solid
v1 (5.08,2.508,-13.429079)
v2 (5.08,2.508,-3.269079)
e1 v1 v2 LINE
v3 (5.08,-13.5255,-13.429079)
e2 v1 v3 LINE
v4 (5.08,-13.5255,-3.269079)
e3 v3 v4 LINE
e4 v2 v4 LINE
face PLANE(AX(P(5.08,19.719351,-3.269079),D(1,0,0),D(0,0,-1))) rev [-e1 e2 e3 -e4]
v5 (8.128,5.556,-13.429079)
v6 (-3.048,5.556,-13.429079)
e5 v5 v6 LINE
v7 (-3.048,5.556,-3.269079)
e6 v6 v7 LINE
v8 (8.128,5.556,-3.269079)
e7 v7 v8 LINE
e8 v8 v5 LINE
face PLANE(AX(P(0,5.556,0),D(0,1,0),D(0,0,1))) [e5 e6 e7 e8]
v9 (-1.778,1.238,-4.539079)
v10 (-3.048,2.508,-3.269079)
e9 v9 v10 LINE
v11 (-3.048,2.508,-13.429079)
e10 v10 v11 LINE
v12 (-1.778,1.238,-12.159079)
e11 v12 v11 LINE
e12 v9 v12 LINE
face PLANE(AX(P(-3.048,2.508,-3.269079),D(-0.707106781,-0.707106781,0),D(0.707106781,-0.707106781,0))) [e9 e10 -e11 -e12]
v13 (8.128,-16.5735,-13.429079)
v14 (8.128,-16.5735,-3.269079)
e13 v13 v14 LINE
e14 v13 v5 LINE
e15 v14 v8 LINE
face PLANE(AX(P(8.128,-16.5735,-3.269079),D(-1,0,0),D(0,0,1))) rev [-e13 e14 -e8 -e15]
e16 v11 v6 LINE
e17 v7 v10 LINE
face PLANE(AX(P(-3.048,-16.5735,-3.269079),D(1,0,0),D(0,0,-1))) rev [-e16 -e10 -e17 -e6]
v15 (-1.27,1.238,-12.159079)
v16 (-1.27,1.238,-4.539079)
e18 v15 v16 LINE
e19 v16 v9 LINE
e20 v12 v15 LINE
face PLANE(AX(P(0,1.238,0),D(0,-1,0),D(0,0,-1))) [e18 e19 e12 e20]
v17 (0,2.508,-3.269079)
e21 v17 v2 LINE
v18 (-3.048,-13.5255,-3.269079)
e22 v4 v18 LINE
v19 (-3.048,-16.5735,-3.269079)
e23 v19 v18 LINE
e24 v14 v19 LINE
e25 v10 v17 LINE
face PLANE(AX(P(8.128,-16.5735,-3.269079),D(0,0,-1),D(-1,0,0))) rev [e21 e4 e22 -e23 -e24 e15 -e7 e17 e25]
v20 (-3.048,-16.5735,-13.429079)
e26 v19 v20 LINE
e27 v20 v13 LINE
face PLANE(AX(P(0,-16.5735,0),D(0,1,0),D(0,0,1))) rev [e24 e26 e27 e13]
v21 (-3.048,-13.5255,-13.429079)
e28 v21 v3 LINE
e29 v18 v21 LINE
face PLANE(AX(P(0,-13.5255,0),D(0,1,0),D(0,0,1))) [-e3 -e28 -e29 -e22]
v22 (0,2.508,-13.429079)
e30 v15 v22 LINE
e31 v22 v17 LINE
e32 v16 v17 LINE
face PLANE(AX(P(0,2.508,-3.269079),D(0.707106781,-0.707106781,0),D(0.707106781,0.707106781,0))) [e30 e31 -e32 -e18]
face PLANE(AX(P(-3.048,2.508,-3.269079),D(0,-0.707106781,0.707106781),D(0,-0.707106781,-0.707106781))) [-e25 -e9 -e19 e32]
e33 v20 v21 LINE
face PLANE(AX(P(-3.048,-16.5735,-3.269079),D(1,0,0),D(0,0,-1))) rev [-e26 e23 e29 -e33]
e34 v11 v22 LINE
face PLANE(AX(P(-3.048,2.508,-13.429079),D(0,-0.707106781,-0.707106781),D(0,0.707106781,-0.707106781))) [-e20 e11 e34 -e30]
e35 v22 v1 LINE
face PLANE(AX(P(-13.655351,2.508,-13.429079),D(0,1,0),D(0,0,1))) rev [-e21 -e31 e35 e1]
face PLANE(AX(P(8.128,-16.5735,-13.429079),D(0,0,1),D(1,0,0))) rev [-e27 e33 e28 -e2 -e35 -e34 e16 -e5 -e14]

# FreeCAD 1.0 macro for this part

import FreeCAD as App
import Part
import Sketcher

V = App.Vector
Q = App.Units.Quantity


def add_polygon(sketch, points):
    """Adds a closed chain of lines whose ends are joined by coincident constraints."""
    first, n = sketch.GeometryCount, len(points)
    for a, b in zip(points, points[1:] + points[:1]):
        sketch.addGeometry(Part.LineSegment(App.Vector(*a, 0), App.Vector(*b, 0)), False)
    for i in range(n):
        sketch.addConstraint(Sketcher.Constraint("Coincident", first + i, 2, first + (i + 1) % n, 1))

doc = App.newDocument("Part")
body = doc.addObject("PartDesign::Body", "Body")

# Sketch on XZ plane
sketch1 = body.newObject("Sketcher::SketchObject", "Sketch")
sketch1.AttachmentSupport = (doc.getObject("XZ_Plane"), [""])
sketch1.MapMode = "FlatFace"
sketch1.AttachmentOffset = App.Placement(V(0, 0, 0.5325 * 25.4), App.Rotation())
add_polygon(sketch1, [(-3, -3), (-3, -13), (8, -13), (8, -3)])  # lines 0-3
sketch1.addConstraint([
    Sketcher.Constraint("Vertical", 0),
    Sketcher.Constraint("Horizontal", 1),
    Sketcher.Constraint("Vertical", 2),
    Sketcher.Constraint("Horizontal", 3),
    Sketcher.Constraint("DistanceY", 0, 2, 0, 1, Q("0.4 in")),
    Sketcher.Constraint("DistanceX", 1, 1, 1, 2, Q("0.44 in")),
    Sketcher.Constraint("DistanceX", 0, 2, -1, 1, Q("0.12 in")),
    Sketcher.Constraint("DistanceY", 0, 2, -1, 1, 13.429079),
])
pad1 = body.newObject("PartDesign::Pad", "Pad")
pad1.Profile = sketch1
pad1.Length = Q("0.12 in")

# Sketch on XZ plane
sketch2 = body.newObject("Sketcher::SketchObject", "Sketch001")
sketch2.AttachmentSupport = (doc.getObject("XZ_Plane"), [""])
sketch2.MapMode = "FlatFace"
sketch2.AttachmentOffset = App.Placement(V(0, 0, 0.5325 * 25.4), App.Rotation())
add_polygon(sketch2, [(5.1, -13.4), (5.1, -3.3), (8.1, -3.3), (8.1, -13.4)])  # lines 0-3
sketch2.addConstraint([
    Sketcher.Constraint("Vertical", 0),
    Sketcher.Constraint("Horizontal", 1),
    Sketcher.Constraint("Vertical", 2),
    Sketcher.Constraint("Horizontal", 3),
    Sketcher.Constraint("DistanceY", 0, 1, 0, 2, Q("0.4 in")),
    Sketcher.Constraint("DistanceX", 1, 1, 1, 2, Q("0.12 in")),
    Sketcher.Constraint("DistanceX", -1, 1, 0, 2, Q("0.2 in")),
    Sketcher.Constraint("DistanceY", 0, 2, -1, 1, 3.269079),
])
pad2 = body.newObject("PartDesign::Pad", "Pad001")
pad2.Profile = sketch2
pad2.Length = 19.0815
pad2.Reversed = True

# Sketch on YZ plane
sketch3 = body.newObject("Sketcher::SketchObject", "Sketch002")
sketch3.AttachmentSupport = (doc.getObject("YZ_Plane"), [""])
sketch3.MapMode = "FlatFace"
sketch3.AttachmentOffset = App.Placement(V(0, 0, 0.2 * 25.4), App.Rotation())
add_polygon(sketch3, [(5.6, -13.4), (2.5, -13.4), (2.5, -3.3), (5.6, -3.3)])  # lines 0-3
sketch3.addConstraint([
    Sketcher.Constraint("Horizontal", 0),
    Sketcher.Constraint("Vertical", 1),
    Sketcher.Constraint("Horizontal", 2),
    Sketcher.Constraint("Vertical", 3),
    Sketcher.Constraint("DistanceY", 1, 1, 1, 2, Q("0.4 in")),
    Sketcher.Constraint("DistanceX", 0, 2, 0, 1, Q("0.12 in")),
    Sketcher.Constraint("DistanceX", -1, 1, 0, 2, 2.508),
    Sketcher.Constraint("DistanceY", 0, 2, -1, 1, 13.429079),
])
pad3 = body.newObject("PartDesign::Pad", "Pad002")
pad3.Profile = sketch3
pad3.Length = Q("0.32 in")
pad3.Reversed = True

# Sketch on XZ plane
sketch4 = body.newObject("Sketcher::SketchObject", "Sketch003")
sketch4.AttachmentSupport = (doc.getObject("XZ_Plane"), [""])
sketch4.MapMode = "FlatFace"
sketch4.AttachmentOffset = App.Placement(V(0, 0, -2.508), App.Rotation())
add_polygon(sketch4, [(-3, -3.3), (-3, -13.4), (0, -13.4), (0, -3.3)])  # lines 0-3
sketch4.addConstraint([
    Sketcher.Constraint("Vertical", 0),
    Sketcher.Constraint("Horizontal", 1),
    Sketcher.Constraint("Vertical", 2),
    Sketcher.Constraint("Horizontal", 3),
    Sketcher.Constraint("PointOnObject", 1, 2, -2),
    Sketcher.Constraint("DistanceY", 0, 2, 0, 1, Q("0.4 in")),
    Sketcher.Constraint("DistanceX", 1, 1, 1, 2, Q("0.12 in")),
    Sketcher.Constraint("DistanceY", 0, 2, -1, 1, 13.429079),
])
pad4 = body.newObject("PartDesign::Pad", "Pad003")
pad4.Profile = sketch4
pad4.Length = Q("0.05 in")
pad4.TaperAngle = -45

doc.recompute()
